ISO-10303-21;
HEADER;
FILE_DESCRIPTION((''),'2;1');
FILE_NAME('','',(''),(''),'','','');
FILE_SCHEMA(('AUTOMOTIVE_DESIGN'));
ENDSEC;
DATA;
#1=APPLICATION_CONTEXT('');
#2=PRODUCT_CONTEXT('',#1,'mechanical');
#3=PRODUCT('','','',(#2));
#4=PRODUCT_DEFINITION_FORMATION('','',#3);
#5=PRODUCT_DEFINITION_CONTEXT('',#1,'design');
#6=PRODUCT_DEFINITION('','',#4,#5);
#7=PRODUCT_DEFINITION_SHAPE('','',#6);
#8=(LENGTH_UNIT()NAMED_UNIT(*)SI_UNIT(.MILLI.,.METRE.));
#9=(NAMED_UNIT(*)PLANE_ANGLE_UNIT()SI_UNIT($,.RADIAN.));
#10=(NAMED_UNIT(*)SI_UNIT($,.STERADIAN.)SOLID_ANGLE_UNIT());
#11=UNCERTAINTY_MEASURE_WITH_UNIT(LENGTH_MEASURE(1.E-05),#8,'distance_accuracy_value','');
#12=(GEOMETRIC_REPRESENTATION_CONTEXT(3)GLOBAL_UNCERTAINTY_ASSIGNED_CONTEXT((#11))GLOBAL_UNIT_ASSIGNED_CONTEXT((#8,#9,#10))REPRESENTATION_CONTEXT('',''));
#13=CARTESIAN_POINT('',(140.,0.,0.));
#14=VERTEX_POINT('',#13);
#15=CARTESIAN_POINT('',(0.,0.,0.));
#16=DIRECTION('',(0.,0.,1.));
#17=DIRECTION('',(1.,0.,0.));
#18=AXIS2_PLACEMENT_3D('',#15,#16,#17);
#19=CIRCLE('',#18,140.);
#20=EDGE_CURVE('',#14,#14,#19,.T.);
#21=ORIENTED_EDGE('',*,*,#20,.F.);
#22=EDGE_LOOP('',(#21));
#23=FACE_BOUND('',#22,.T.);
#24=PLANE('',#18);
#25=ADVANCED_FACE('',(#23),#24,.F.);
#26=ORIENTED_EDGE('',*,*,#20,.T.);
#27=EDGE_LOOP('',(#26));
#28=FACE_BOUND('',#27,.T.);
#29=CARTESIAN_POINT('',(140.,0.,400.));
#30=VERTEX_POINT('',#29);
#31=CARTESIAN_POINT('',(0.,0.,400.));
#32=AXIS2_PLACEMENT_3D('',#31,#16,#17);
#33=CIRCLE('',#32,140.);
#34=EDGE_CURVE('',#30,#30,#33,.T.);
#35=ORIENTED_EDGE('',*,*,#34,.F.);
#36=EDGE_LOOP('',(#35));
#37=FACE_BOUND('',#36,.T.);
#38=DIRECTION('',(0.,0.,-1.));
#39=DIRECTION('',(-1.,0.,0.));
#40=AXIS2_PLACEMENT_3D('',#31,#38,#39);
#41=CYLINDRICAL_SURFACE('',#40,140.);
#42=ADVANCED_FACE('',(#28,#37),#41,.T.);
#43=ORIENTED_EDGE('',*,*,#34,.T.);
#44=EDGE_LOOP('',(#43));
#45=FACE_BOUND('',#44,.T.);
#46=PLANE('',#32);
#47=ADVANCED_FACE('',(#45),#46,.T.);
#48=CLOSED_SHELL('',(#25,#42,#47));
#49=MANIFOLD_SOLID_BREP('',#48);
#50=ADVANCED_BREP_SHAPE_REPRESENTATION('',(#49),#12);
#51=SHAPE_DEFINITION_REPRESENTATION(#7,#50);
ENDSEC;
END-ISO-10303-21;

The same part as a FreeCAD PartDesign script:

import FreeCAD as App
import Part
import Sketcher
Q = App.Units.Quantity

doc = App.newDocument("Part")
body = doc.addObject("PartDesign::Body", "Body")

sketch1 = body.newObject("Sketcher::SketchObject", "Sketch")
sketch1.AttachmentSupport = (doc.getObject("XY_Plane"), [""])
sketch1.MapMode = "FlatFace"
sketch1.addGeometry(Part.Circle(App.Vector(0, 0, 0), App.Vector(0, 0, 1), 140), False)
sketch1.addConstraint(Sketcher.Constraint("Coincident", 0, 3, -1, 1))
sketch1.addConstraint(Sketcher.Constraint("Diameter", 0, Q("280 mm")))
pad1 = body.newObject("PartDesign::Pad", "Pad")
pad1.Profile = sketch1
pad1.Length = 400

doc.recompute()
